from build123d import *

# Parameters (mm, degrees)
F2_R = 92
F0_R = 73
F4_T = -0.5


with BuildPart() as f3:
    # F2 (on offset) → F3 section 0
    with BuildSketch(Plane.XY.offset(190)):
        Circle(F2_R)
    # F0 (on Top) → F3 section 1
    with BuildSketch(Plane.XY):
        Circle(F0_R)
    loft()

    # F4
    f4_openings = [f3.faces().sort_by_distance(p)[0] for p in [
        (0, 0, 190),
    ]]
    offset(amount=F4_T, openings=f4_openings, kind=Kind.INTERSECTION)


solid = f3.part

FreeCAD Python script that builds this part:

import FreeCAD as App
import Part
import Sketcher
Q = App.Units.Quantity


def faces_at(feature, points):
    """Names of the faces that lie closest to the given points."""
    faces = feature.Shape.Faces
    near = lambda p: min(range(len(faces)), key=lambda i: faces[i].distToShape(Part.Vertex(*p))[0])
    return sorted({f"Face{near(p) + 1}" for p in points})

doc = App.newDocument("Part")
params = doc.addObject("Spreadsheet::Sheet", "Params")
for row, (alias, value) in enumerate([
    ("sketch1_diameter", "184 mm"),
    ("sketch2_diameter", "146 mm"),
    ("thickness_wall", "0.5 mm"),
], start=1):
    params.set(f"A{row}", alias)
    params.set(f"B{row}", "=" + value)
    params.setAlias(f"B{row}", alias)

body = doc.addObject("PartDesign::Body", "Body")

# Sketch on XY plane
sketch1 = body.newObject("Sketcher::SketchObject", "Sketch")
sketch1.AttachmentSupport = (doc.getObject("XY_Plane"), [""])
sketch1.MapMode = "FlatFace"
sketch1.AttachmentOffset = App.Placement(App.Vector(0, 0, 190), App.Rotation())
sketch1.addGeometry(Part.Circle(App.Vector(0, 0, 0), App.Vector(0, 0, 1), 92), False)
sketch1.addConstraint([
    Sketcher.Constraint("Coincident", 0, 3, -1, 1),
    Sketcher.Constraint("Diameter", 0, Q("184 mm")),
])
sketch1.setExpression("Constraints[1]", "Params.sketch1_diameter")

# Sketch on XY plane
sketch2 = body.newObject("Sketcher::SketchObject", "Sketch001")
sketch2.AttachmentSupport = (doc.getObject("XY_Plane"), [""])
sketch2.MapMode = "FlatFace"
sketch2.addGeometry(Part.Circle(App.Vector(0, 0, 0), App.Vector(0, 0, 1), 73), False)
sketch2.addConstraint([
    Sketcher.Constraint("Coincident", 0, 3, -1, 1),
    Sketcher.Constraint("Diameter", 0, Q("146 mm")),
])
sketch2.setExpression("Constraints[1]", "Params.sketch2_diameter")

additiveloft = body.newObject("PartDesign::AdditiveLoft", "AdditiveLoft")
additiveloft.Profile = sketch1
additiveloft.Sections = [sketch2]
doc.recompute()

thickness = body.newObject("PartDesign::Thickness", "Thickness")
thickness.Base = (additiveloft, faces_at(additiveloft, [(0, 0, 190)]))
thickness.setExpression("Value", "Params.thickness_wall")
thickness.Reversed = True
thickness.Join = "Intersection"

doc.recompute()
